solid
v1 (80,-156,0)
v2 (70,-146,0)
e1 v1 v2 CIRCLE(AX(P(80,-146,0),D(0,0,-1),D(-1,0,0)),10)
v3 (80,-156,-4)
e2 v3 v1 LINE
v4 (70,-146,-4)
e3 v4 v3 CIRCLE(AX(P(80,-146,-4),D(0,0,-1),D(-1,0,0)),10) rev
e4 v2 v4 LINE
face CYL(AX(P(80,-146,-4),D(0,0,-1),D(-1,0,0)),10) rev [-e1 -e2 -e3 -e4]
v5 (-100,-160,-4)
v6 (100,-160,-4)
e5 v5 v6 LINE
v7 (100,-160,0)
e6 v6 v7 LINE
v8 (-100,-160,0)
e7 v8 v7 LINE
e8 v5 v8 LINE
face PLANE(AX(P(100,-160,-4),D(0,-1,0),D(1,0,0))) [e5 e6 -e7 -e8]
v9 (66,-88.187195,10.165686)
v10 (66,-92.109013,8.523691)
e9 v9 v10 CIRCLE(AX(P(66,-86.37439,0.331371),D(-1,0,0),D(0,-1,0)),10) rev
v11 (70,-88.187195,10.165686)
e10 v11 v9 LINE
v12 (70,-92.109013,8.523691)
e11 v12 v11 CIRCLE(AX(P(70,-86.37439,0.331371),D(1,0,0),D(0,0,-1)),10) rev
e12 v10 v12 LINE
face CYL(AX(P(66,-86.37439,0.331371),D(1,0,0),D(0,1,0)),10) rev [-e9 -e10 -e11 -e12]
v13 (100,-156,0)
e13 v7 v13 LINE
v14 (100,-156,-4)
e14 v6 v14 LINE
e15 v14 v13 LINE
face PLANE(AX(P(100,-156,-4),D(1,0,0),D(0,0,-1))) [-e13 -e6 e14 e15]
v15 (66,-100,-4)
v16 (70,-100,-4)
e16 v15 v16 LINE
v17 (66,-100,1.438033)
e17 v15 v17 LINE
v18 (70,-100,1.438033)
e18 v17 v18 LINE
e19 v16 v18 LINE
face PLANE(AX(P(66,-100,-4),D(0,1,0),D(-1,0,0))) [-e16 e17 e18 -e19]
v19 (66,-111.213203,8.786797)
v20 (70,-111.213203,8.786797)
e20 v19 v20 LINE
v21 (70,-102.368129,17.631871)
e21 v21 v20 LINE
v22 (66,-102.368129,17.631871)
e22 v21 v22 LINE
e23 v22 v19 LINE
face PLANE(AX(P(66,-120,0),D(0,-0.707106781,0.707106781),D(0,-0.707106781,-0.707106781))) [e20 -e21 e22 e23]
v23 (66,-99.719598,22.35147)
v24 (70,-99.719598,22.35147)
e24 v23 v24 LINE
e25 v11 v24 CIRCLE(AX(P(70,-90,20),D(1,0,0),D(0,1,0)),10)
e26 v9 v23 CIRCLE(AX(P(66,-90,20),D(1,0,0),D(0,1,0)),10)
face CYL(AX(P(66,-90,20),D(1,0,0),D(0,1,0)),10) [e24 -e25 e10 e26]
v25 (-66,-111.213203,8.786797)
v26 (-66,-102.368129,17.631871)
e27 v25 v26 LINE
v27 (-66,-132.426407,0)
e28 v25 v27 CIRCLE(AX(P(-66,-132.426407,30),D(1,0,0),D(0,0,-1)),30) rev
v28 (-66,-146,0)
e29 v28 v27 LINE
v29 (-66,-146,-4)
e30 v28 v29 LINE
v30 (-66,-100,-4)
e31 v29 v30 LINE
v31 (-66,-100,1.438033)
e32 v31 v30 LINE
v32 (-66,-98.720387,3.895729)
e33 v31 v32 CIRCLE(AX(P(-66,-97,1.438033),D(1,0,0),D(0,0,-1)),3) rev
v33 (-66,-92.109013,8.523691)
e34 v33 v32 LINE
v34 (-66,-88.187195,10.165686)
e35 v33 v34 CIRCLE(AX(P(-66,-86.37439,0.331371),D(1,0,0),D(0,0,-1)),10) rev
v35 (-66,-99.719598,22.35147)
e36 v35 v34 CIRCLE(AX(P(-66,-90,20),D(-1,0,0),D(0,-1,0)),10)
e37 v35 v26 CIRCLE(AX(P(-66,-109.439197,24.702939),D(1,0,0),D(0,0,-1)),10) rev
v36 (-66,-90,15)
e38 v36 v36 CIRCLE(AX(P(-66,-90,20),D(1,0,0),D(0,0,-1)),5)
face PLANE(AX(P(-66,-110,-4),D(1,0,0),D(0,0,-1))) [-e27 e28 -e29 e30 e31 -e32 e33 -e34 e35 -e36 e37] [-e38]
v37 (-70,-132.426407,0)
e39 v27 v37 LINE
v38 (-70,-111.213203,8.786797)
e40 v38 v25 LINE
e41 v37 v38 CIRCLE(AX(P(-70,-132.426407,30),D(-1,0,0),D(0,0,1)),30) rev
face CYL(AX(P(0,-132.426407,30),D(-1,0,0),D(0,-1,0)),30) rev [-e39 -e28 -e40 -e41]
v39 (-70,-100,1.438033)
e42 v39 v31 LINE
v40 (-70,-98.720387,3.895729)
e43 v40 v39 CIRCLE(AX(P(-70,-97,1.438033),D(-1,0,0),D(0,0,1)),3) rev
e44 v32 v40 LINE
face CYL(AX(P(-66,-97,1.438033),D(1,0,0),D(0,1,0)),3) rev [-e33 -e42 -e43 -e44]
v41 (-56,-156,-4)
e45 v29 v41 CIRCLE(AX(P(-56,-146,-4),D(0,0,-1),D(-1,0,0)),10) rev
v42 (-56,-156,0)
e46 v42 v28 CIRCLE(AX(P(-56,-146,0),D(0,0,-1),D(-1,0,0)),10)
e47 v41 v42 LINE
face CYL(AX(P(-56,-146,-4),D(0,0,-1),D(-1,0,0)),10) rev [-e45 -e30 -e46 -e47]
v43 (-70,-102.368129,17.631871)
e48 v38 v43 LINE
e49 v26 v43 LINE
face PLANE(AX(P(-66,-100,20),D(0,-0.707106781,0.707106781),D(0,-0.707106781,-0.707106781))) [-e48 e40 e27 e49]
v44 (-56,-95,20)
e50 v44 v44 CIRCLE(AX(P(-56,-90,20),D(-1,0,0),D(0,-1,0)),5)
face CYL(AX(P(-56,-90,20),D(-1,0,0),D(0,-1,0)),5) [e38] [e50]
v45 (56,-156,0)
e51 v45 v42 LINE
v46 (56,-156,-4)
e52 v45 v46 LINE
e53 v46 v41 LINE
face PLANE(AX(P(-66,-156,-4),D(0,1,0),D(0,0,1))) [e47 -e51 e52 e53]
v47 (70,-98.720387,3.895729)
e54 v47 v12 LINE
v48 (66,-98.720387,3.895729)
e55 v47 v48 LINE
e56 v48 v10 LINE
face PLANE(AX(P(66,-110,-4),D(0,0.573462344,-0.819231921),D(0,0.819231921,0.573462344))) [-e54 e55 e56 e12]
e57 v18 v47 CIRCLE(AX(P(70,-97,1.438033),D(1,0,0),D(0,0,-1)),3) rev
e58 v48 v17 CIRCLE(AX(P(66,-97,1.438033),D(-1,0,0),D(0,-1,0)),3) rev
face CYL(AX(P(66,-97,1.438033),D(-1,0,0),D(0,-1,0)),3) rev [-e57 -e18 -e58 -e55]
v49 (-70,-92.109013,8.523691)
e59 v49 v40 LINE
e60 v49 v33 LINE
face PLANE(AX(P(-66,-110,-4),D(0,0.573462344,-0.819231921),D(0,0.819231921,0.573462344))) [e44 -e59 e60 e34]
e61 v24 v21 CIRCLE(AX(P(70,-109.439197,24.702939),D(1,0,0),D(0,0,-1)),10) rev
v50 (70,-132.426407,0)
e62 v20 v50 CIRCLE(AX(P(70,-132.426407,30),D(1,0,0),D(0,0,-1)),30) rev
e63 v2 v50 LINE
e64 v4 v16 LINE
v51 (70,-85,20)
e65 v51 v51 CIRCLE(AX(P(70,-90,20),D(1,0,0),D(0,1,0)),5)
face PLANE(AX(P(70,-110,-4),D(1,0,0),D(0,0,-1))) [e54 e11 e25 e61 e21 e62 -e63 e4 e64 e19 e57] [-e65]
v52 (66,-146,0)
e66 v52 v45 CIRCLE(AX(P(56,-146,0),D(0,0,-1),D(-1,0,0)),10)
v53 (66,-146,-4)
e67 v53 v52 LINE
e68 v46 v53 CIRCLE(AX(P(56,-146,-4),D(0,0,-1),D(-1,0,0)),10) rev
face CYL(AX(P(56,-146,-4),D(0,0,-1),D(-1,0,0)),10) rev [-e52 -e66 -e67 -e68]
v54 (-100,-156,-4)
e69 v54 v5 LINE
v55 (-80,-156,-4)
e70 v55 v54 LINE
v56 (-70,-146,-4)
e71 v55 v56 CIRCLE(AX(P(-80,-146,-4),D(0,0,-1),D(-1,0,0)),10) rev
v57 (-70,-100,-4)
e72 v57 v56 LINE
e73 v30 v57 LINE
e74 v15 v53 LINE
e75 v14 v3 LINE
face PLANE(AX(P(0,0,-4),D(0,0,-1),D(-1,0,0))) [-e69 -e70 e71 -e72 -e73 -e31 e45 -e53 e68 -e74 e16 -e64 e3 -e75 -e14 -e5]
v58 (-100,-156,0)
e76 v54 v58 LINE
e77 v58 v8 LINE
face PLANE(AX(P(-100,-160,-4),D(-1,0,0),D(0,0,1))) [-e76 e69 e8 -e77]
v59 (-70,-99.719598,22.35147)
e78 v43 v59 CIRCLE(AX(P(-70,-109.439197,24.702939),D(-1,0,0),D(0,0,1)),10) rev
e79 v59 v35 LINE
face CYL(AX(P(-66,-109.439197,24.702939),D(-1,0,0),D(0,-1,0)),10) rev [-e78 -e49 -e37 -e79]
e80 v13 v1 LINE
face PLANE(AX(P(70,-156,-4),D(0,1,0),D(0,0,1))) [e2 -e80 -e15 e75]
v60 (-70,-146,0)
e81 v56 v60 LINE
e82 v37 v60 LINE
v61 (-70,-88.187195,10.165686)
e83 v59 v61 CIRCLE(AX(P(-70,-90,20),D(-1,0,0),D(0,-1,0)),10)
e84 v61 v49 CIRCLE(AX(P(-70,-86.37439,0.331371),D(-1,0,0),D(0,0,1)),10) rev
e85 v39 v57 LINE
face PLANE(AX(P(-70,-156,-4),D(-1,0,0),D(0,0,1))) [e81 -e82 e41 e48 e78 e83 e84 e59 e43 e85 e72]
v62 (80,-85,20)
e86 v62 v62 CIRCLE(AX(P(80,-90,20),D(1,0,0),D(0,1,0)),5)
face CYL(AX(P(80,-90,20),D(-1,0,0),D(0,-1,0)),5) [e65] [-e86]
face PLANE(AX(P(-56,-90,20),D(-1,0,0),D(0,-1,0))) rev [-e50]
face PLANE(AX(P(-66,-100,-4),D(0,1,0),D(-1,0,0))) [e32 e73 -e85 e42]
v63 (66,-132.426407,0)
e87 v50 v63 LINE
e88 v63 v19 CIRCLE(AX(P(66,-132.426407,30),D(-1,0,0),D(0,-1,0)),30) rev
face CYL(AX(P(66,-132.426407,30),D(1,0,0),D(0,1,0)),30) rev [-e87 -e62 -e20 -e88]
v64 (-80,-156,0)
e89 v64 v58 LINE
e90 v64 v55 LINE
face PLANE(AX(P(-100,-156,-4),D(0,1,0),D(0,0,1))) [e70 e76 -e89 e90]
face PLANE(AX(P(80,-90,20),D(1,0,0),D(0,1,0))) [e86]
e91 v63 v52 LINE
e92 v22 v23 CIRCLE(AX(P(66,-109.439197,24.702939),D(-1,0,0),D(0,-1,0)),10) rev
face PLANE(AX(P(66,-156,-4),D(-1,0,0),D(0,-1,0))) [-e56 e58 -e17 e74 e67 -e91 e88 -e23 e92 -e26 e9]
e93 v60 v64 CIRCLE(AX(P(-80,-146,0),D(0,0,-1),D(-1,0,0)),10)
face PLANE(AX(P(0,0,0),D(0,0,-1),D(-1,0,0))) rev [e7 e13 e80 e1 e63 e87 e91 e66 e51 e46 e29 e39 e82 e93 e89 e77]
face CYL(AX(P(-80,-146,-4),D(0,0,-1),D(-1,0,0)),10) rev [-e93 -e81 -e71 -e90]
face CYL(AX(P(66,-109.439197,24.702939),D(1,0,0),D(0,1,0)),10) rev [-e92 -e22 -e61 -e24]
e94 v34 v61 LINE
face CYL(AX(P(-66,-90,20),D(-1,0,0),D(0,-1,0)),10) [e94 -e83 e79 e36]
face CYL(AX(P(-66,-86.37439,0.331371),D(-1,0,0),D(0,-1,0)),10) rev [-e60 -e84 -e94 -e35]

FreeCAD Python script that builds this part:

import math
import FreeCAD as App
import Part
import Sketcher
from FreeCAD import Vector
Q = App.Units.Quantity


def edges_at(feature, points):
    """Names of the edges that pass closest to the given points."""
    edges = feature.Shape.Edges
    near = lambda p: min(range(len(edges)), key=lambda i: edges[i].distToShape(Part.Vertex(*p))[0])
    return sorted({f"Edge{near(p) + 1}" for p in points})


def add_polygon(sketch, points):
    """Adds a closed chain of lines whose ends are joined by coincident constraints."""
    first, n = sketch.GeometryCount, len(points)
    for a, b in zip(points, points[1:] + points[:1]):
        sketch.addGeometry(Part.LineSegment(App.Vector(*a, 0), App.Vector(*b, 0)), False)
    for i in range(n):
        sketch.addConstraint(Sketcher.Constraint("Coincident", first + i, 2, first + (i + 1) % n, 1))

doc = App.newDocument("Part")
body = doc.addObject("PartDesign::Body", "Body")

sketch1 = doc.addObject("Sketcher::SketchObject", "Sketch")
body.addObject(sketch1)
sketch1.AttachmentSupport = (doc.XY_Plane, [""])
sketch1.MapMode = "FlatFace"
add_polygon(sketch1, [(-66, -110), (-70, -110), (-70, -156), (-100, -156), (-100, -160), (100, -160), (100, -156), (70, -156), (70, -110), (66, -110), (66, -156), (-66, -156)])
sketch1.addConstraint([
    Sketcher.Constraint("Horizontal", 0),
    Sketcher.Constraint("Vertical", 1),
    Sketcher.Constraint("Horizontal", 2),
    Sketcher.Constraint("Vertical", 3),
    Sketcher.Constraint("Horizontal", 4),
    Sketcher.Constraint("Vertical", 5),
    Sketcher.Constraint("Horizontal", 6),
    Sketcher.Constraint("Vertical", 7),
    Sketcher.Constraint("Horizontal", 8),
    Sketcher.Constraint("Vertical", 9),
    Sketcher.Constraint("Horizontal", 10),
    Sketcher.Constraint("Vertical", 11),
    Sketcher.Constraint("Symmetric", 2, 2, 5, 2, -2),
    Sketcher.Constraint("Symmetric", 0, 2, 7, 2, -2),
    Sketcher.Constraint("Horizontal", 6, 2, 9, 2),
    Sketcher.Constraint("Equal", 0, 8),
    Sketcher.Constraint("Equal", 8, 3),
    Sketcher.Constraint("DistanceX", 0, 2, 0, 1, 4.0),
    Sketcher.Constraint("DistanceX", 2, 2, 2, 1, 30.0),
    Sketcher.Constraint("DistanceX", 4, 1, 4, 2, 200.0),
    Sketcher.Constraint("DistanceY", 1, 2, 1, 1, 46.0),
    Sketcher.Constraint("DistanceY", 0, 2, -1, 1, 110.0),
])
pad1 = doc.addObject("PartDesign::Pad", "Pad")
body.addObject(pad1)
pad1.Profile = sketch1
pad1.Length = 4
pad1.Reversed = True

sketch2 = doc.addObject("Sketcher::SketchObject", "Sketch001")
body.addObject(sketch2)
sketch2.AttachmentSupport = (doc.YZ_Plane, [""])
sketch2.MapMode = "FlatFace"
sketch2.AttachmentOffset = App.Placement(Vector(0, 0, 70), App.Rotation())
sketch2.addGeometry([
    Part.LineSegment(Vector(-100, 20, 0), Vector(-120, 0, 0)),
    Part.LineSegment(Vector(-120, 0, 0), Vector(-110, 0, 0)),
    Part.LineSegment(Vector(-110, 0, 0), Vector(-110, -4, 0)),
    Part.LineSegment(Vector(-110, -4, 0), Vector(-90, 10, 0)),
    Part.ArcOfCircle(Part.Circle(Vector(-90, 20, 0), Vector(0, 0, 1), 10), math.radians(-90), math.radians(180)),
], False)
sketch2.addConstraint([
    Sketcher.Constraint("Coincident", 0, 2, 1, 1),
    Sketcher.Constraint("Coincident", 1, 2, 2, 1),
    Sketcher.Constraint("Coincident", 2, 2, 3, 1),
    Sketcher.Constraint("Coincident", 3, 2, 4, 1),
    Sketcher.Constraint("Coincident", 4, 2, 0, 1),
    Sketcher.Constraint("Horizontal", 1),
    Sketcher.Constraint("Vertical", 2),
    Sketcher.Constraint("PointOnObject", 0, 2, -1),
    Sketcher.Constraint("Vertical", 4, 3, 3, 2),
    Sketcher.Constraint("Radius", 4, 10.0),
    Sketcher.Constraint("DistanceX", 1, 1, 1, 2, 10.0),
    Sketcher.Constraint("DistanceY", 2, 2, 2, 1, 4.0),
    Sketcher.Constraint("Angle", 0, Q("-135 deg")),
    Sketcher.Constraint("DistanceX", 4, 3, -1, 1, 90.0),
    Sketcher.Constraint("DistanceY", -1, 1, 4, 3, 20.0),
    Sketcher.Constraint("DistanceX", 0, 2, -1, 1, 120.0),
])
pad2 = doc.addObject("PartDesign::Pad", "Pad001")
body.addObject(pad2)
pad2.Profile = sketch2
pad2.Length = 4
pad2.Reversed = True

sketch3 = doc.addObject("Sketcher::SketchObject", "Sketch002")
body.addObject(sketch3)
sketch3.AttachmentSupport = (doc.YZ_Plane, [""])
sketch3.MapMode = "FlatFace"
sketch3.AttachmentOffset = App.Placement(Vector(0, 0, -66), App.Rotation())
sketch3.addGeometry([
    Part.LineSegment(Vector(-90, 10, 0), Vector(-110, -4, 0)),
    Part.LineSegment(Vector(-110, -4, 0), Vector(-110, 0, 0)),
    Part.LineSegment(Vector(-110, 0, 0), Vector(-120, 0, 0)),
    Part.LineSegment(Vector(-120, 0, 0), Vector(-100, 20, 0)),
    Part.ArcOfCircle(Part.Circle(Vector(-90, 20, 0), Vector(0, 0, 1), 10), math.radians(-90), math.radians(180)),
], False)
sketch3.addConstraint([
    Sketcher.Constraint("Coincident", 0, 2, 1, 1),
    Sketcher.Constraint("Coincident", 1, 2, 2, 1),
    Sketcher.Constraint("Coincident", 2, 2, 3, 1),
    Sketcher.Constraint("Coincident", 3, 2, 4, 2),
    Sketcher.Constraint("Coincident", 4, 1, 0, 1),
    Sketcher.Constraint("Vertical", 1),
    Sketcher.Constraint("Horizontal", 2),
    Sketcher.Constraint("PointOnObject", 1, 2, -1),
    Sketcher.Constraint("Horizontal", 4, 3, 3, 2),
    Sketcher.Constraint("Radius", 4, 10.0),
    Sketcher.Constraint("DistanceX", 2, 2, 2, 1, 10.0),
    Sketcher.Constraint("DistanceY", 1, 1, 1, 2, 4.0),
    Sketcher.Constraint("Angle", 3, Q("45 deg")),
    Sketcher.Constraint("DistanceX", 4, 3, -1, 1, 90.0),
    Sketcher.Constraint("DistanceY", -1, 1, 4, 3, 20.0),
    Sketcher.Constraint("DistanceX", 4, 1, -1, 1, 90.0),
])
pad3 = doc.addObject("PartDesign::Pad", "Pad002")
body.addObject(pad3)
pad3.Profile = sketch3
pad3.Length = 4
pad3.Reversed = True
doc.recompute()

fillet = doc.addObject("PartDesign::Fillet", "Fillet")
body.addObject(fillet)
fillet.Base = (pad3, edges_at(pad3, [(68, -120, 0), (-68, -120, 0)]))
fillet.Radius = 30
doc.recompute()

fillet2 = doc.addObject("PartDesign::Fillet", "Fillet001")
body.addObject(fillet2)
fillet2.Base = (fillet, edges_at(fillet, [(68, -110, -4), (-68, -110, -4)]))
fillet2.Radius = 30
doc.recompute()

fillet3 = doc.addObject("PartDesign::Fillet", "Fillet002")
body.addObject(fillet3)
fillet3.Base = (fillet2, edges_at(fillet2, [
    (-70, -156, -2),
    (-66, -156, -2),
    (66, -156, -2),
    (70, -156, -2),
]))
fillet3.Radius = 10

sketch4 = doc.addObject("Sketcher::SketchObject", "Sketch003")
body.addObject(sketch4)
sketch4.AttachmentSupport = (doc.YZ_Plane, [""])
sketch4.MapMode = "FlatFace"
sketch4.AttachmentOffset = App.Placement(Vector(0, 0, -70), App.Rotation())
add_polygon(sketch4, [(-100, -4), (-119, -4), (-100, 3)])
sketch4.addConstraint([
    Sketcher.Constraint("Horizontal", 0),
    Sketcher.Constraint("Vertical", 2),
    Sketcher.Constraint("DistanceY", 2, 2, 2, 1, 7.0),
    Sketcher.Constraint("DistanceY", 0, 2, -1, 1, 4.0),
    Sketcher.Constraint("DistanceX", 1, 2, -1, 1, 100.0),
    Sketcher.Constraint("Distance", 1, 20.67757),
])
pad4 = doc.addObject("PartDesign::Pad", "Pad003")
body.addObject(pad4)
pad4.Profile = sketch4
pad4.Length = 4

sketch5 = doc.addObject("Sketcher::SketchObject", "Sketch004")
body.addObject(sketch5)
sketch5.AttachmentSupport = (doc.YZ_Plane, [""])
sketch5.MapMode = "FlatFace"
sketch5.AttachmentOffset = App.Placement(Vector(0, 0, 70), App.Rotation())
add_polygon(sketch5, [(-119, -4), (-100, -4), (-100, 3)])
sketch5.addConstraint([
    Sketcher.Constraint("Horizontal", 0),
    Sketcher.Constraint("Vertical", 1),
    Sketcher.Constraint("DistanceY", 1, 1, 1, 2, 7.0),
    Sketcher.Constraint("DistanceX", 0, 2, -1, 1, 100.0),
    Sketcher.Constraint("DistanceY", 0, 2, -1, 1, 4.0),
    Sketcher.Constraint("Distance", 2, 20.67757),
])
pad5 = doc.addObject("PartDesign::Pad", "Pad004")
body.addObject(pad5)
pad5.Profile = sketch5
pad5.Length = 4
pad5.Reversed = True

sketch6 = doc.addObject("Sketcher::SketchObject", "Sketch005")
body.addObject(sketch6)
sketch6.AttachmentSupport = (doc.YZ_Plane, [""])
sketch6.MapMode = "FlatFace"
sketch6.AttachmentOffset = App.Placement(Vector(0, 0, 70), App.Rotation())
sketch6.addGeometry(Part.Circle(Vector(-90, 20, 0), Vector(0, 0, 1), 5), False)
sketch6.addConstraint([
    Sketcher.Constraint("Diameter", 0, 10.0),
    Sketcher.Constraint("DistanceX", 0, 3, -1, 1, 90.0),
    Sketcher.Constraint("DistanceY", -1, 1, 0, 3, 20.0),
])
pad6 = doc.addObject("PartDesign::Pad", "Pad005")
body.addObject(pad6)
pad6.Profile = sketch6
pad6.Length = 10

sketch7 = doc.addObject("Sketcher::SketchObject", "Sketch006")
body.addObject(sketch7)
sketch7.AttachmentSupport = (doc.YZ_Plane, [""])
sketch7.MapMode = "FlatFace"
sketch7.AttachmentOffset = App.Placement(Vector(0, 0, -70), App.Rotation())
sketch7.addGeometry(Part.Circle(Vector(-90, 20, 0), Vector(0, 0, 1), 5), False)
sketch7.addConstraint([
    Sketcher.Constraint("Diameter", 0, 10.0),
    Sketcher.Constraint("DistanceX", 0, 3, -1, 1, 90.0),
    Sketcher.Constraint("DistanceY", -1, 1, 0, 3, 20.0),
])
pad7 = doc.addObject("PartDesign::Pad", "Pad006")
body.addObject(pad7)
pad7.Profile = sketch7
pad7.Length = 14
doc.recompute()

fillet4 = doc.addObject("PartDesign::Fillet", "Fillet003")
body.addObject(fillet4)
fillet4.Base = (pad7, edges_at(pad7, [
    (68, -100, 20),
    (68, -90, 10),
    (-68, -90, 10),
    (-68, -100, 20),
]))
fillet4.Radius = 10
doc.recompute()

fillet5 = doc.addObject("PartDesign::Fillet", "Fillet004")
body.addObject(fillet5)
fillet5.Base = (fillet4, edges_at(fillet4, [(-68, -100, 3), (68, -100, 3)]))
fillet5.Radius = 3

doc.recompute()
